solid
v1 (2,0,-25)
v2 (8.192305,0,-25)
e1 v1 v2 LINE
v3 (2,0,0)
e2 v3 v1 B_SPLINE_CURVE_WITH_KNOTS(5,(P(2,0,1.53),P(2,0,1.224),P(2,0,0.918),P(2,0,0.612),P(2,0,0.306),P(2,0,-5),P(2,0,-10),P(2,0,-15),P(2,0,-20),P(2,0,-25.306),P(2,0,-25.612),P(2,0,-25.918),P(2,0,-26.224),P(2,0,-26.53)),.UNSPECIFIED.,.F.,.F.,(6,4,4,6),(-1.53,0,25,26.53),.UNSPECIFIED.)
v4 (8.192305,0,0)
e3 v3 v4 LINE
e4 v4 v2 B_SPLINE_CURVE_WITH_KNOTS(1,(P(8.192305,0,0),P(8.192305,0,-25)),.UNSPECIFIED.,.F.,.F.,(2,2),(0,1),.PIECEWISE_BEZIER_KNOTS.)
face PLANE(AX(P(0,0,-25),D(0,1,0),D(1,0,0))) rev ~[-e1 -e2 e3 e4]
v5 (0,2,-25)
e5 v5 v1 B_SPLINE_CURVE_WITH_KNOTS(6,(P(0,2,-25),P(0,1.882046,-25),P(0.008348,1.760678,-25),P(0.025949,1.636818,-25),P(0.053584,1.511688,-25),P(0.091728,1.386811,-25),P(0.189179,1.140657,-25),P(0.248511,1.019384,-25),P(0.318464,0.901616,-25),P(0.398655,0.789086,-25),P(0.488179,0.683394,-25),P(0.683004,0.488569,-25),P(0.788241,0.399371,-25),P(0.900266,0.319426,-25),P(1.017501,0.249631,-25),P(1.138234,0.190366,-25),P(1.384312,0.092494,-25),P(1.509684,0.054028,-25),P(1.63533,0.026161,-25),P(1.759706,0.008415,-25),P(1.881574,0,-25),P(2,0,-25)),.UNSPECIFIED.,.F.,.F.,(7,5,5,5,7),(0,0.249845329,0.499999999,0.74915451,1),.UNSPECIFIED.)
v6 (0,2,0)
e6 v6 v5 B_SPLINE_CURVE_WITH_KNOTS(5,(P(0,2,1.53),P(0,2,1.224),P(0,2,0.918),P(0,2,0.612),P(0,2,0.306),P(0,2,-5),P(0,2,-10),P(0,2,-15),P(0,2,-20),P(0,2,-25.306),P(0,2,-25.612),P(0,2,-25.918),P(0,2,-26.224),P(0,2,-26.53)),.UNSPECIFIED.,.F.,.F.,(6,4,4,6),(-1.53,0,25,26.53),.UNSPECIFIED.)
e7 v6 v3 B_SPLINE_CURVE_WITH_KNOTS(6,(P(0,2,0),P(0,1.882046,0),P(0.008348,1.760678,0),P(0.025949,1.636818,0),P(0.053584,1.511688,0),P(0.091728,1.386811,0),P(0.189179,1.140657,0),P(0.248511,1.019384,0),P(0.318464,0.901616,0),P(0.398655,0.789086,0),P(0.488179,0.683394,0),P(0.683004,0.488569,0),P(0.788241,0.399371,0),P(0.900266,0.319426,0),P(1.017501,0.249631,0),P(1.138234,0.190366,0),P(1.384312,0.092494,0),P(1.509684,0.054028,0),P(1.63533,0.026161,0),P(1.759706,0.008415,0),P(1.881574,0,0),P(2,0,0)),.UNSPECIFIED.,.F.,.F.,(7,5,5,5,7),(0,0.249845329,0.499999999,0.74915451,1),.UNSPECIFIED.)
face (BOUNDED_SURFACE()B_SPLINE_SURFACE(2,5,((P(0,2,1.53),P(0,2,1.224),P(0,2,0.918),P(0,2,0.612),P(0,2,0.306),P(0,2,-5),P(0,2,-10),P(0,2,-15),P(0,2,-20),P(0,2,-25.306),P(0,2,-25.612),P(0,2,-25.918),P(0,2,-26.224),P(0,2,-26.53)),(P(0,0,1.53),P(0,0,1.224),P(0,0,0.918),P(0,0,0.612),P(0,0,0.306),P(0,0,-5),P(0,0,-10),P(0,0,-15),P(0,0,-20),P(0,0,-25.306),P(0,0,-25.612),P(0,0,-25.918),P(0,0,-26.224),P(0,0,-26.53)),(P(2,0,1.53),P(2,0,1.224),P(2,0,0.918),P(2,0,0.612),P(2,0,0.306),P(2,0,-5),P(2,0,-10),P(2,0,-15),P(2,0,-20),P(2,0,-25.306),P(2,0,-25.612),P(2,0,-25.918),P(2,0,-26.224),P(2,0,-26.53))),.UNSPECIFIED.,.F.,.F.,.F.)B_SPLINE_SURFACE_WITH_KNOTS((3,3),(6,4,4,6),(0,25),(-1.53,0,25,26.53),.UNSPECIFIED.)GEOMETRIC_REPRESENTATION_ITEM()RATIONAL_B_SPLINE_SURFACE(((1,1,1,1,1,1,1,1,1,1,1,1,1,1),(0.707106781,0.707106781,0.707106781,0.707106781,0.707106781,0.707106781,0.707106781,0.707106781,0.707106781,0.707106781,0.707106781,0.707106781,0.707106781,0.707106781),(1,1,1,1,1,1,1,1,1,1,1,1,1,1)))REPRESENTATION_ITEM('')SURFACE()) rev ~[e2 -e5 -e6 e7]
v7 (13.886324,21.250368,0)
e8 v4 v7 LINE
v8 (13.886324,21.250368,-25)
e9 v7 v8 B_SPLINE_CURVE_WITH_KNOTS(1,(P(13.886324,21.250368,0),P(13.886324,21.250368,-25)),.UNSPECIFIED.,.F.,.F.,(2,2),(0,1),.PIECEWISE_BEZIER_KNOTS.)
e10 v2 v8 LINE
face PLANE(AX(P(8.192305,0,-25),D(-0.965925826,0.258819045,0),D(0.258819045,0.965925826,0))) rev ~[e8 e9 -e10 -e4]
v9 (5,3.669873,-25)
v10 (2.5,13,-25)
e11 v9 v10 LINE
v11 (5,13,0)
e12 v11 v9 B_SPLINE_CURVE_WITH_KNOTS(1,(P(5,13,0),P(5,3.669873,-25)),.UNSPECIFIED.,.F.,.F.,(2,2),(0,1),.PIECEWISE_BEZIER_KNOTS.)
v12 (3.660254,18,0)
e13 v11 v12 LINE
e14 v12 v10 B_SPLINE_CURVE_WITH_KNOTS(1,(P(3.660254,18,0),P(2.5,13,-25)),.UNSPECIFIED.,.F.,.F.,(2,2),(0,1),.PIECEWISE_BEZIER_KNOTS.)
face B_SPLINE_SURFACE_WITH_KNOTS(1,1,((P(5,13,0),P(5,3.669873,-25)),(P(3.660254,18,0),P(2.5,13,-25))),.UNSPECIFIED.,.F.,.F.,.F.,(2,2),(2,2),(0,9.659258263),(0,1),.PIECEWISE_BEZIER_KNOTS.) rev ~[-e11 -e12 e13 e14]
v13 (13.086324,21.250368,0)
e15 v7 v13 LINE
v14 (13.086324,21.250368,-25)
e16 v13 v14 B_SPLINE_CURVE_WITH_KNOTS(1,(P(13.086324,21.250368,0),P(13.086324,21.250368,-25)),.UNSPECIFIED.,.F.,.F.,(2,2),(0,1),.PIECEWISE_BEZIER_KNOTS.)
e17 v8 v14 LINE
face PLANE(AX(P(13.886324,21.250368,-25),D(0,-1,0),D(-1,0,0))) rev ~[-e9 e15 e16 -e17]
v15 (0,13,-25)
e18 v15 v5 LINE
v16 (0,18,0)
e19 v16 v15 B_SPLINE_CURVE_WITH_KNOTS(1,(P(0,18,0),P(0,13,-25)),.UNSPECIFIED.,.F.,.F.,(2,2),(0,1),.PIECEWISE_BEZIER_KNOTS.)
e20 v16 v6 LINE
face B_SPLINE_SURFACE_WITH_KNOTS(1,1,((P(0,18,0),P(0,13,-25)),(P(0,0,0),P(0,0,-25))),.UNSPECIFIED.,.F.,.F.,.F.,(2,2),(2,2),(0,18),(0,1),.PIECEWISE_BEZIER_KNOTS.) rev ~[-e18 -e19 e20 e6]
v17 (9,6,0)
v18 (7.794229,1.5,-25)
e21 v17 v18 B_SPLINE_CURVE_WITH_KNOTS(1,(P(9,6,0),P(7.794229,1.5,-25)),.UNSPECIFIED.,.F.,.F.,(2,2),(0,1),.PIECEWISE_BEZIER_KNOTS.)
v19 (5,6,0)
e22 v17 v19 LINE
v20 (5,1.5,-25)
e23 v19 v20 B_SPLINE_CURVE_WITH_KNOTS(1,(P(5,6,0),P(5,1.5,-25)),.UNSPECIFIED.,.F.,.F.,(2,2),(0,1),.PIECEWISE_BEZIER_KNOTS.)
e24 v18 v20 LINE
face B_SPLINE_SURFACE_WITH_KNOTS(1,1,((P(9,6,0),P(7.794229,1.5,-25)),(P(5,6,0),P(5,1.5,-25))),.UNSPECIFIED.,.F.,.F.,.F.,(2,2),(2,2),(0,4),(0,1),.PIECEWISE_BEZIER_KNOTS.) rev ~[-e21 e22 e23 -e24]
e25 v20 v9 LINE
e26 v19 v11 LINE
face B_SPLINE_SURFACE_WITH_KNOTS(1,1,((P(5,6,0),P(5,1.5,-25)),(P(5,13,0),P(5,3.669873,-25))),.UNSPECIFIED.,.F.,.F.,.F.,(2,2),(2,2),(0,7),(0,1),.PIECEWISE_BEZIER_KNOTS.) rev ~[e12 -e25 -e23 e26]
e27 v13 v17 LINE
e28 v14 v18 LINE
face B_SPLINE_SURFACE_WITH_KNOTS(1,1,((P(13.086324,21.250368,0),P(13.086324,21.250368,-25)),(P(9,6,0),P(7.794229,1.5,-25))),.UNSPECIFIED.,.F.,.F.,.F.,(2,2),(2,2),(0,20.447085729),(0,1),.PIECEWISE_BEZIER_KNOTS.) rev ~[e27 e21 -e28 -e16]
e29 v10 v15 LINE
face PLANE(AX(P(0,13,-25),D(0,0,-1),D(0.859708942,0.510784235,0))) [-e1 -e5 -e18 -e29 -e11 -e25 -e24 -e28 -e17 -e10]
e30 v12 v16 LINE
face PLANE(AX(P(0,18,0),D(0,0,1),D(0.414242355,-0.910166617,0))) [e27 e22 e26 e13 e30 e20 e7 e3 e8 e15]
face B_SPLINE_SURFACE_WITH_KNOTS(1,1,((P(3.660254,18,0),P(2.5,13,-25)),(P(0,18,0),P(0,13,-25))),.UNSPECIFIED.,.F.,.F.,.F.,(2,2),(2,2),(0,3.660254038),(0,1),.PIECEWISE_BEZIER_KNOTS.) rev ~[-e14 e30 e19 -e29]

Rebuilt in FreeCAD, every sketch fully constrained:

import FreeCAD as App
import Part
import Sketcher
from FreeCAD import Vector
Q = App.Units.Quantity


def edges_at(feature, points):
    """Names of the edges that pass closest to the given points."""
    edges = feature.Shape.Edges
    near = lambda p: min(range(len(edges)), key=lambda i: edges[i].distToShape(Part.Vertex(*p))[0])
    return sorted({f"Edge{near(p) + 1}" for p in points})

doc = App.newDocument("Part")
body = doc.addObject("PartDesign::Body", "Body")

# Sketch on XY plane
sketch1 = doc.addObject("Sketcher::SketchObject", "Sketch")
body.addObject(sketch1)
sketch1.AttachmentSupport = (doc.XY_Plane, [""])
sketch1.MapMode = "FlatFace"
sketch1.addGeometry(Part.LineSegment(Vector(0, 18, 0), Vector(0, 0, 0)), False)
sketch1.addGeometry(Part.LineSegment(Vector(0, 0, 0), Vector(8.2, 0, 0)), False)
sketch1.addGeometry(Part.LineSegment(Vector(8.2, 0, 0), Vector(13.9, 21.3, 0)), False)
sketch1.addGeometry(Part.LineSegment(Vector(13.9, 21.3, 0), Vector(13.1, 21.3, 0)), False)
sketch1.addGeometry(Part.LineSegment(Vector(13.1, 21.3, 0), Vector(9, 6, 0)), False)
sketch1.addGeometry(Part.LineSegment(Vector(9, 6, 0), Vector(5, 6, 0)), False)
sketch1.addGeometry(Part.LineSegment(Vector(5, 6, 0), Vector(5, 13, 0)), False)
sketch1.addGeometry(Part.LineSegment(Vector(5, 13, 0), Vector(3.7, 18, 0)), False)
sketch1.addGeometry(Part.LineSegment(Vector(3.7, 18, 0), Vector(0, 18, 0)), False)
sketch1.addConstraint(Sketcher.Constraint("Coincident", 0, 2, 1, 1))
sketch1.addConstraint(Sketcher.Constraint("Coincident", 1, 2, 2, 1))
sketch1.addConstraint(Sketcher.Constraint("Coincident", 2, 2, 3, 1))
sketch1.addConstraint(Sketcher.Constraint("Coincident", 3, 2, 4, 1))
sketch1.addConstraint(Sketcher.Constraint("Coincident", 4, 2, 5, 1))
sketch1.addConstraint(Sketcher.Constraint("Coincident", 5, 2, 6, 1))
sketch1.addConstraint(Sketcher.Constraint("Coincident", 6, 2, 7, 1))
sketch1.addConstraint(Sketcher.Constraint("Coincident", 7, 2, 8, 1))
sketch1.addConstraint(Sketcher.Constraint("Coincident", 8, 2, 0, 1))
sketch1.addConstraint(Sketcher.Constraint("Vertical", 0))
sketch1.addConstraint(Sketcher.Constraint("Horizontal", 1))
sketch1.addConstraint(Sketcher.Constraint("Horizontal", 3))
sketch1.addConstraint(Sketcher.Constraint("Horizontal", 5))
sketch1.addConstraint(Sketcher.Constraint("Vertical", 6))
sketch1.addConstraint(Sketcher.Constraint("Horizontal", 8))
sketch1.addConstraint(Sketcher.Constraint("Coincident", 0, 2, -1, 1))
sketch1.addConstraint(Sketcher.Constraint("Parallel", 2, 4))
sketch1.addConstraint(Sketcher.Constraint("DistanceX", 5, 2, 5, 1, Q("4 mm")))
sketch1.addConstraint(Sketcher.Constraint("DistanceY", 0, 2, 0, 1, Q("18 mm")))
sketch1.addConstraint(Sketcher.Constraint("DistanceY", 6, 1, 6, 2, Q("7 mm")))
sketch1.addConstraint(Sketcher.Constraint("Angle", 2, Q("75 deg")))
sketch1.addConstraint(Sketcher.Constraint("Angle", 7, Q("105 deg")))
sketch1.addConstraint(Sketcher.Constraint("Distance", 2, Q("22 mm")))
sketch1.addConstraint(Sketcher.Constraint("DistanceX", 3, 2, 3, 1, Q("0.8 mm")))
sketch1.addConstraint(Sketcher.Constraint("DistanceX", -1, 1, 4, 2, Q("9 mm")))
sketch1.addConstraint(Sketcher.Constraint("DistanceY", -1, 1, 4, 2, Q("6 mm")))

# Sketch on XY plane
sketch2 = doc.addObject("Sketcher::SketchObject", "Sketch001")
body.addObject(sketch2)
sketch2.AttachmentSupport = (doc.XY_Plane, [""])
sketch2.MapMode = "FlatFace"
sketch2.AttachmentOffset = App.Placement(Vector(0, 0, -25), App.Rotation())
sketch2.addGeometry(Part.LineSegment(Vector(0, 13, 0), Vector(0, 0, 0)), False)
sketch2.addGeometry(Part.LineSegment(Vector(0, 0, 0), Vector(8.2, 0, 0)), False)
sketch2.addGeometry(Part.LineSegment(Vector(8.2, 0, 0), Vector(13.9, 21.3, 0)), False)
sketch2.addGeometry(Part.LineSegment(Vector(13.9, 21.3, 0), Vector(13.1, 21.3, 0)), False)
sketch2.addGeometry(Part.LineSegment(Vector(13.1, 21.3, 0), Vector(7.8, 1.5, 0)), False)
sketch2.addGeometry(Part.LineSegment(Vector(7.8, 1.5, 0), Vector(5, 1.5, 0)), False)
sketch2.addGeometry(Part.LineSegment(Vector(5, 1.5, 0), Vector(5, 3.7, 0)), False)
sketch2.addGeometry(Part.LineSegment(Vector(5, 3.7, 0), Vector(2.5, 13, 0)), False)
sketch2.addGeometry(Part.LineSegment(Vector(2.5, 13, 0), Vector(0, 13, 0)), False)
sketch2.addConstraint(Sketcher.Constraint("Coincident", 0, 2, 1, 1))
sketch2.addConstraint(Sketcher.Constraint("Coincident", 1, 2, 2, 1))
sketch2.addConstraint(Sketcher.Constraint("Coincident", 2, 2, 3, 1))
sketch2.addConstraint(Sketcher.Constraint("Coincident", 3, 2, 4, 1))
sketch2.addConstraint(Sketcher.Constraint("Coincident", 4, 2, 5, 1))
sketch2.addConstraint(Sketcher.Constraint("Coincident", 5, 2, 6, 1))
sketch2.addConstraint(Sketcher.Constraint("Coincident", 6, 2, 7, 1))
sketch2.addConstraint(Sketcher.Constraint("Coincident", 7, 2, 8, 1))
sketch2.addConstraint(Sketcher.Constraint("Coincident", 8, 2, 0, 1))
sketch2.addConstraint(Sketcher.Constraint("Vertical", 0))
sketch2.addConstraint(Sketcher.Constraint("Horizontal", 1))
sketch2.addConstraint(Sketcher.Constraint("Horizontal", 3))
sketch2.addConstraint(Sketcher.Constraint("Horizontal", 5))
sketch2.addConstraint(Sketcher.Constraint("Vertical", 6))
sketch2.addConstraint(Sketcher.Constraint("Horizontal", 8))
sketch2.addConstraint(Sketcher.Constraint("Coincident", 0, 2, -1, 1))
sketch2.addConstraint(Sketcher.Constraint("Parallel", 2, 4))
sketch2.addConstraint(Sketcher.Constraint("DistanceY", 0, 2, 0, 1, Q("13 mm")))
sketch2.addConstraint(Sketcher.Constraint("Angle", 2, Q("75 deg")))
sketch2.addConstraint(Sketcher.Constraint("Angle", 7, Q("105 deg")))
sketch2.addConstraint(Sketcher.Constraint("Distance", 2, Q("22 mm")))
sketch2.addConstraint(Sketcher.Constraint("DistanceX", 3, 2, 3, 1, Q("0.8 mm")))
sketch2.addConstraint(Sketcher.Constraint("DistanceX", 8, 2, 8, 1, Q("2.5 mm")))
sketch2.addConstraint(Sketcher.Constraint("DistanceX", -1, 1, 5, 2, Q("5 mm")))
sketch2.addConstraint(Sketcher.Constraint("DistanceY", -1, 1, 4, 2, Q("1.5 mm")))
sketch2.addConstraint(Sketcher.Constraint("DistanceX", 5, 2, 5, 1, Q("2.794229 mm")))

additiveloft = doc.addObject("PartDesign::AdditiveLoft", "AdditiveLoft")
body.addObject(additiveloft)
additiveloft.Profile = sketch1
additiveloft.Sections = [sketch2]
doc.recompute()

fillet = doc.addObject("PartDesign::Fillet", "Fillet")
body.addObject(fillet)
fillet.Base = (additiveloft, edges_at(additiveloft, [(0, 0, -12.5)]))
fillet.Radius = 2

doc.recompute()
